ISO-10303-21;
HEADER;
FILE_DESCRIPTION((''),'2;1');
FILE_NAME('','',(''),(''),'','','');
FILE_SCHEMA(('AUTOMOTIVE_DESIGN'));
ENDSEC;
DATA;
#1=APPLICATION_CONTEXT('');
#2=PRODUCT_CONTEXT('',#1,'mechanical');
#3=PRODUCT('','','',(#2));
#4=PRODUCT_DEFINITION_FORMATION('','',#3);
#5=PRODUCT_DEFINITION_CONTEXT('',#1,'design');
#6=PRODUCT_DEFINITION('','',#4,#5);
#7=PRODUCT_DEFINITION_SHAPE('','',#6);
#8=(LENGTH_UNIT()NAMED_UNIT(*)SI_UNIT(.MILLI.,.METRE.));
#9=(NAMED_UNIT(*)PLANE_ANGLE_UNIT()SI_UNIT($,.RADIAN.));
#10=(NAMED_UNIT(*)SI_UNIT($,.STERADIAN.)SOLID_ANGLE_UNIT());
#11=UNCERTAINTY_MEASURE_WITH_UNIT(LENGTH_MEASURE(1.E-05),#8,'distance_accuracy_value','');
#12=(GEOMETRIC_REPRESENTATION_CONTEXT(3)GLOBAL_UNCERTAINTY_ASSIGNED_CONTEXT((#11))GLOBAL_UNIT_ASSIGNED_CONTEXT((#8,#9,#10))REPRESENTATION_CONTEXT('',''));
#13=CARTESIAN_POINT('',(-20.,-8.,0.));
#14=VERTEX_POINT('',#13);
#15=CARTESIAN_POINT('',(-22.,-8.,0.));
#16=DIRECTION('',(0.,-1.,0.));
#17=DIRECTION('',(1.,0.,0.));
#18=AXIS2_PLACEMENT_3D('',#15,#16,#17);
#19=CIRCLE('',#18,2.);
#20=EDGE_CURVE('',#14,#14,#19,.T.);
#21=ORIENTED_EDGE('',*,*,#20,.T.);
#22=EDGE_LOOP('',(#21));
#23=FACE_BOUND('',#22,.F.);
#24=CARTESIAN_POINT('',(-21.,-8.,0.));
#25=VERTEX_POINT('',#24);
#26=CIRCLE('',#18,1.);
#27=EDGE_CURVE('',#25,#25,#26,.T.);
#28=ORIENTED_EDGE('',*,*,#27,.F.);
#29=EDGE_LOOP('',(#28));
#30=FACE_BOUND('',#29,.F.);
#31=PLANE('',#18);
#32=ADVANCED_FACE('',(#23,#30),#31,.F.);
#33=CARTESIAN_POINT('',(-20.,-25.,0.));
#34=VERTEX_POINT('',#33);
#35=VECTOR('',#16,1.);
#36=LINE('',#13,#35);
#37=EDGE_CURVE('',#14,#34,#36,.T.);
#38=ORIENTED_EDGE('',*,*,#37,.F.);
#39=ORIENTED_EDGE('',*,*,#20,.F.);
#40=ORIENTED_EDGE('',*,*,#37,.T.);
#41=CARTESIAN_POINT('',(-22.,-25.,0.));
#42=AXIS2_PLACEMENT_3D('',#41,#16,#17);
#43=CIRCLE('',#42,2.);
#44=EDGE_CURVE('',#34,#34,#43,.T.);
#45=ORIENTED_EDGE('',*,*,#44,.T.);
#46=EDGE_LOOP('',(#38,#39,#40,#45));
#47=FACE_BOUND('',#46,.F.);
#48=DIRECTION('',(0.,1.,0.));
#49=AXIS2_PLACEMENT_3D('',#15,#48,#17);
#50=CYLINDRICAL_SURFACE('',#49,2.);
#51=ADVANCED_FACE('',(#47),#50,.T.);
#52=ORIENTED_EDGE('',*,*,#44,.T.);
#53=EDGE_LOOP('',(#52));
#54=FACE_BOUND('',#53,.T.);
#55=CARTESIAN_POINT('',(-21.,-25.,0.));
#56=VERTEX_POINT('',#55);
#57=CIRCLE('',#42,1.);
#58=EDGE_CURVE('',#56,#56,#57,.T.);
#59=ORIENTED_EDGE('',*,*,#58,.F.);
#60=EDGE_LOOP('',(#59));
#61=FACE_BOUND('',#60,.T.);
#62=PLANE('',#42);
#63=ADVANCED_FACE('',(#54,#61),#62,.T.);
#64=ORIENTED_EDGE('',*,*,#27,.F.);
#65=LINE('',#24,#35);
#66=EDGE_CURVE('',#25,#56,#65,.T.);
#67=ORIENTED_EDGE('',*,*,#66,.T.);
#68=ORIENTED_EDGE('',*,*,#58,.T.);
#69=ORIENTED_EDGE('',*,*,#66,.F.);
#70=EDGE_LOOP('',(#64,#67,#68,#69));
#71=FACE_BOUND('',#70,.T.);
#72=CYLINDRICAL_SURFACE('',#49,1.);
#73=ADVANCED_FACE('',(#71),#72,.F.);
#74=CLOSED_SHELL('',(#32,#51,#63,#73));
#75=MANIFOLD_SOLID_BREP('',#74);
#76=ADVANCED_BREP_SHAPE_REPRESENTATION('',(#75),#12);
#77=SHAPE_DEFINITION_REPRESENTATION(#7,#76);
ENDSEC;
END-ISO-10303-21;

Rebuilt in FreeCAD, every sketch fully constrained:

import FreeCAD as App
import Part
import Sketcher
from FreeCAD import Vector

doc = App.newDocument("Part")
body = doc.addObject("PartDesign::Body", "Body")

# Sketch on XY plane
sketch1 = body.newObject("Sketcher::SketchObject", "Sketch")
sketch1.AttachmentSupport = (doc.getObject("XY_Plane"), [""])
sketch1.MapMode = "FlatFace"
sketch1.addGeometry(Part.Circle(Vector(0, 0, 0), Vector(0, 0, 1), 1), False)
sketch1.addConstraint([
    Sketcher.Constraint("Coincident", 0, 3, -1, 1),
    Sketcher.Constraint("Diameter", 0, 2.0),
])
pad1 = body.newObject("PartDesign::Pad", "Pad")
pad1.Profile = sketch1
pad1.Length = 17
body2 = doc.addObject("PartDesign::Body", "Body001")
doc.recompute()

body.Placement = App.Placement(Vector(0, 0, 0), App.Rotation(Vector(1, 0, 0), 90))
boolean = body2.newObject("PartDesign::Boolean", "Boolean")
boolean.Type = "Fuse"
boolean.addObjects([body])
body3 = doc.addObject("PartDesign::Body", "Body002")
doc.recompute()

body2.Placement = App.Placement(Vector(-23, -8, 0), App.Rotation(Vector(0, 0, 1), 0))
boolean2 = body3.newObject("PartDesign::Boolean", "Boolean001")
boolean2.Type = "Fuse"
boolean2.addObjects([body2])
body4 = doc.addObject("PartDesign::Body", "Body003")

# Sketch on XY plane
sketch2 = body4.newObject("Sketcher::SketchObject", "Sketch001")
sketch2.AttachmentSupport = (doc.getObject("XY_Plane003"), [""])
sketch2.MapMode = "FlatFace"
sketch2.addGeometry(Part.Circle(Vector(0, 0, 0), Vector(0, 0, 1), 2), False)
sketch2.addConstraint([
    Sketcher.Constraint("Coincident", 0, 3, -1, 1),
    Sketcher.Constraint("Diameter", 0, 4.0),
])
pad2 = body4.newObject("PartDesign::Pad", "Pad001")
pad2.Profile = sketch2
pad2.Length = 17
body5 = doc.addObject("PartDesign::Body", "Body004")
doc.recompute()

body4.Placement = App.Placement(Vector(0, 0, 0), App.Rotation(Vector(1, 0, 0), 90))
boolean3 = body5.newObject("PartDesign::Boolean", "Boolean002")
boolean3.Type = "Fuse"
boolean3.addObjects([body4])
body6 = doc.addObject("PartDesign::Body", "Body005")
doc.recompute()

body5.Placement = App.Placement(Vector(-23, -8, 0), App.Rotation(Vector(0, 0, 1), 0))
boolean4 = body6.newObject("PartDesign::Boolean", "Boolean003")
boolean4.Type = "Fuse"
boolean4.addObjects([body5])
doc.recompute()

boolean5 = body6.newObject("PartDesign::Boolean", "Boolean004")
boolean5.Type = "Cut"
boolean5.addObjects([body3])
body7 = doc.addObject("PartDesign::Body", "Body006")
doc.recompute()

body6.Placement = App.Placement(Vector(1, 0, 0), App.Rotation(Vector(0, 0, 1), 0))
boolean6 = body7.newObject("PartDesign::Boolean", "Boolean005")
boolean6.Type = "Fuse"
boolean6.addObjects([body6])

doc.recompute()
